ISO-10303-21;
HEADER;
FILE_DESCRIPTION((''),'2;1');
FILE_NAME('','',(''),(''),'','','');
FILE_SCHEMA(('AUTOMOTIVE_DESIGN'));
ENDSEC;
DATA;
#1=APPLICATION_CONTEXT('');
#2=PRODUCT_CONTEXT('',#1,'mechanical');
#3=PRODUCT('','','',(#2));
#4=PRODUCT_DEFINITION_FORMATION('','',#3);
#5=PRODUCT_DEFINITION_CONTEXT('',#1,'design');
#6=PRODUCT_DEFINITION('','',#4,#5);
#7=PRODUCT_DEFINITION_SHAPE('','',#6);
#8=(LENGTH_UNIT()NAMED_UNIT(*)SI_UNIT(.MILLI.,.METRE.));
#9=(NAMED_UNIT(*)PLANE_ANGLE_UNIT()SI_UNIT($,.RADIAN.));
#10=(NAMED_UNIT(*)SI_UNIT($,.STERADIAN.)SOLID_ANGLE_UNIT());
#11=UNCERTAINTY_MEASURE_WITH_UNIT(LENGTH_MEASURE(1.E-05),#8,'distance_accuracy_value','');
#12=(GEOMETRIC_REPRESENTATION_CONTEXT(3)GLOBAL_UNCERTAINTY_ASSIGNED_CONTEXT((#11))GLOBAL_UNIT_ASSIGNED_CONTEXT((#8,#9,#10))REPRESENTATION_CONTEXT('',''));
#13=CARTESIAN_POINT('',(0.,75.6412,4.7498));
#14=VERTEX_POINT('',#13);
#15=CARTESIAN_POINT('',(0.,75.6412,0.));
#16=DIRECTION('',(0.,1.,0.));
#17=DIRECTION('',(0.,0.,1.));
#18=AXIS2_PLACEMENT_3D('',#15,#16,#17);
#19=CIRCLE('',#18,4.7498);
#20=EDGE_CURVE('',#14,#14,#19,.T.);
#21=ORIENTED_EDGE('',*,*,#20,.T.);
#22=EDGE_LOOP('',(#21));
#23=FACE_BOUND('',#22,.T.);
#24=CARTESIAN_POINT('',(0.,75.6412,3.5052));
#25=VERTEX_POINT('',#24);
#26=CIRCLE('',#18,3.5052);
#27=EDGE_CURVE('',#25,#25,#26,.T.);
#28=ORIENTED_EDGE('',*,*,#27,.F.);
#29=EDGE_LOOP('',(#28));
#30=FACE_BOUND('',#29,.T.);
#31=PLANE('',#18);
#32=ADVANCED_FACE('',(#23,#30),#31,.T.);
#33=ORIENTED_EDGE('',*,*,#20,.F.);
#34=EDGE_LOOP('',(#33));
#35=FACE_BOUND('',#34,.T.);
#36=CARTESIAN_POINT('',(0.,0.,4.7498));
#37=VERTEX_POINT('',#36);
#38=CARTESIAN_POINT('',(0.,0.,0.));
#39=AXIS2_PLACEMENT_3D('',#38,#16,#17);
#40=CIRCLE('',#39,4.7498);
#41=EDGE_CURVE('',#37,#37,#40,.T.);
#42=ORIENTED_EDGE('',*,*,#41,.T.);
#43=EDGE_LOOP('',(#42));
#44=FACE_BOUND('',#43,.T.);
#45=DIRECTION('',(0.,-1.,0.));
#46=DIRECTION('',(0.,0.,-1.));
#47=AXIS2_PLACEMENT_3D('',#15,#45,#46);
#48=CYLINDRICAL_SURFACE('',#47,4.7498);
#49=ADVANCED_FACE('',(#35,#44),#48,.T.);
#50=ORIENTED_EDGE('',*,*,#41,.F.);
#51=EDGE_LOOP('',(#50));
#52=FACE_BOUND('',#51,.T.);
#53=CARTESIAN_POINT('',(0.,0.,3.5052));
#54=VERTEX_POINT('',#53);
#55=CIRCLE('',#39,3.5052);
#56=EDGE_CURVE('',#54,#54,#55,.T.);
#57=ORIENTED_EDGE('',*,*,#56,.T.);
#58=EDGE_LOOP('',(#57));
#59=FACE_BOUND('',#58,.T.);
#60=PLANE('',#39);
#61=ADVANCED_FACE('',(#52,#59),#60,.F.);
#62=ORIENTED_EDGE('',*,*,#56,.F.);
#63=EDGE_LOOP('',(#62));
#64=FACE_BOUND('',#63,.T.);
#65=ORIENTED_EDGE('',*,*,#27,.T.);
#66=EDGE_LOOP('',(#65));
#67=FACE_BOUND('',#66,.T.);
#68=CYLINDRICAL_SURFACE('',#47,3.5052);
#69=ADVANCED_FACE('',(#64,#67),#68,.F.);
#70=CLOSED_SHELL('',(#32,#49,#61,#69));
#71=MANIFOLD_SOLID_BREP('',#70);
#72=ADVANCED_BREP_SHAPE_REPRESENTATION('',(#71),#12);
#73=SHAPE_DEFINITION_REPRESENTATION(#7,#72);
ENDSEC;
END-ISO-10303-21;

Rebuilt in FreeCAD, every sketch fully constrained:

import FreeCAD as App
import Part
import Sketcher
from FreeCAD import Vector
Q = App.Units.Quantity

doc = App.newDocument("Part")
params = doc.addObject("Spreadsheet::Sheet", "Params")
for row, (alias, value) in enumerate([
    ("sketch1_diameter", "0.374 in"),
    ("sketch1_diameter2", "0.276 in"),
    ("pad1_length", "2.978 in"),
], start=1):
    params.set(f"A{row}", alias)
    params.set(f"B{row}", "=" + value)
    params.setAlias(f"B{row}", alias)

body = doc.addObject("PartDesign::Body", "Body")

# Sketch on XZ plane
sketch1 = body.newObject("Sketcher::SketchObject", "Sketch")
sketch1.AttachmentSupport = (doc.getObject("XZ_Plane"), [""])
sketch1.MapMode = "FlatFace"
sketch1.addGeometry([
    Part.Circle(Vector(0, 0, 0), Vector(0, 0, 1), 4.7),
    Part.Circle(Vector(0, 0, 0), Vector(0, 0, 1), 3.5),
], False)
sketch1.addConstraint([
    Sketcher.Constraint("Coincident", 0, 3, -1, 1),
    Sketcher.Constraint("Coincident", 1, 3, -1, 1),
    Sketcher.Constraint("Diameter", 0, Q("0.374 in")),
    Sketcher.Constraint("Diameter", 1, Q("0.276 in")),
])
sketch1.setExpression("Constraints[2]", "Params.sketch1_diameter")
sketch1.setExpression("Constraints[3]", "Params.sketch1_diameter2")
pad1 = body.newObject("PartDesign::Pad", "Pad")
pad1.Profile = sketch1
pad1.setExpression("Length", "Params.pad1_length")
pad1.Reversed = True

doc.recompute()
